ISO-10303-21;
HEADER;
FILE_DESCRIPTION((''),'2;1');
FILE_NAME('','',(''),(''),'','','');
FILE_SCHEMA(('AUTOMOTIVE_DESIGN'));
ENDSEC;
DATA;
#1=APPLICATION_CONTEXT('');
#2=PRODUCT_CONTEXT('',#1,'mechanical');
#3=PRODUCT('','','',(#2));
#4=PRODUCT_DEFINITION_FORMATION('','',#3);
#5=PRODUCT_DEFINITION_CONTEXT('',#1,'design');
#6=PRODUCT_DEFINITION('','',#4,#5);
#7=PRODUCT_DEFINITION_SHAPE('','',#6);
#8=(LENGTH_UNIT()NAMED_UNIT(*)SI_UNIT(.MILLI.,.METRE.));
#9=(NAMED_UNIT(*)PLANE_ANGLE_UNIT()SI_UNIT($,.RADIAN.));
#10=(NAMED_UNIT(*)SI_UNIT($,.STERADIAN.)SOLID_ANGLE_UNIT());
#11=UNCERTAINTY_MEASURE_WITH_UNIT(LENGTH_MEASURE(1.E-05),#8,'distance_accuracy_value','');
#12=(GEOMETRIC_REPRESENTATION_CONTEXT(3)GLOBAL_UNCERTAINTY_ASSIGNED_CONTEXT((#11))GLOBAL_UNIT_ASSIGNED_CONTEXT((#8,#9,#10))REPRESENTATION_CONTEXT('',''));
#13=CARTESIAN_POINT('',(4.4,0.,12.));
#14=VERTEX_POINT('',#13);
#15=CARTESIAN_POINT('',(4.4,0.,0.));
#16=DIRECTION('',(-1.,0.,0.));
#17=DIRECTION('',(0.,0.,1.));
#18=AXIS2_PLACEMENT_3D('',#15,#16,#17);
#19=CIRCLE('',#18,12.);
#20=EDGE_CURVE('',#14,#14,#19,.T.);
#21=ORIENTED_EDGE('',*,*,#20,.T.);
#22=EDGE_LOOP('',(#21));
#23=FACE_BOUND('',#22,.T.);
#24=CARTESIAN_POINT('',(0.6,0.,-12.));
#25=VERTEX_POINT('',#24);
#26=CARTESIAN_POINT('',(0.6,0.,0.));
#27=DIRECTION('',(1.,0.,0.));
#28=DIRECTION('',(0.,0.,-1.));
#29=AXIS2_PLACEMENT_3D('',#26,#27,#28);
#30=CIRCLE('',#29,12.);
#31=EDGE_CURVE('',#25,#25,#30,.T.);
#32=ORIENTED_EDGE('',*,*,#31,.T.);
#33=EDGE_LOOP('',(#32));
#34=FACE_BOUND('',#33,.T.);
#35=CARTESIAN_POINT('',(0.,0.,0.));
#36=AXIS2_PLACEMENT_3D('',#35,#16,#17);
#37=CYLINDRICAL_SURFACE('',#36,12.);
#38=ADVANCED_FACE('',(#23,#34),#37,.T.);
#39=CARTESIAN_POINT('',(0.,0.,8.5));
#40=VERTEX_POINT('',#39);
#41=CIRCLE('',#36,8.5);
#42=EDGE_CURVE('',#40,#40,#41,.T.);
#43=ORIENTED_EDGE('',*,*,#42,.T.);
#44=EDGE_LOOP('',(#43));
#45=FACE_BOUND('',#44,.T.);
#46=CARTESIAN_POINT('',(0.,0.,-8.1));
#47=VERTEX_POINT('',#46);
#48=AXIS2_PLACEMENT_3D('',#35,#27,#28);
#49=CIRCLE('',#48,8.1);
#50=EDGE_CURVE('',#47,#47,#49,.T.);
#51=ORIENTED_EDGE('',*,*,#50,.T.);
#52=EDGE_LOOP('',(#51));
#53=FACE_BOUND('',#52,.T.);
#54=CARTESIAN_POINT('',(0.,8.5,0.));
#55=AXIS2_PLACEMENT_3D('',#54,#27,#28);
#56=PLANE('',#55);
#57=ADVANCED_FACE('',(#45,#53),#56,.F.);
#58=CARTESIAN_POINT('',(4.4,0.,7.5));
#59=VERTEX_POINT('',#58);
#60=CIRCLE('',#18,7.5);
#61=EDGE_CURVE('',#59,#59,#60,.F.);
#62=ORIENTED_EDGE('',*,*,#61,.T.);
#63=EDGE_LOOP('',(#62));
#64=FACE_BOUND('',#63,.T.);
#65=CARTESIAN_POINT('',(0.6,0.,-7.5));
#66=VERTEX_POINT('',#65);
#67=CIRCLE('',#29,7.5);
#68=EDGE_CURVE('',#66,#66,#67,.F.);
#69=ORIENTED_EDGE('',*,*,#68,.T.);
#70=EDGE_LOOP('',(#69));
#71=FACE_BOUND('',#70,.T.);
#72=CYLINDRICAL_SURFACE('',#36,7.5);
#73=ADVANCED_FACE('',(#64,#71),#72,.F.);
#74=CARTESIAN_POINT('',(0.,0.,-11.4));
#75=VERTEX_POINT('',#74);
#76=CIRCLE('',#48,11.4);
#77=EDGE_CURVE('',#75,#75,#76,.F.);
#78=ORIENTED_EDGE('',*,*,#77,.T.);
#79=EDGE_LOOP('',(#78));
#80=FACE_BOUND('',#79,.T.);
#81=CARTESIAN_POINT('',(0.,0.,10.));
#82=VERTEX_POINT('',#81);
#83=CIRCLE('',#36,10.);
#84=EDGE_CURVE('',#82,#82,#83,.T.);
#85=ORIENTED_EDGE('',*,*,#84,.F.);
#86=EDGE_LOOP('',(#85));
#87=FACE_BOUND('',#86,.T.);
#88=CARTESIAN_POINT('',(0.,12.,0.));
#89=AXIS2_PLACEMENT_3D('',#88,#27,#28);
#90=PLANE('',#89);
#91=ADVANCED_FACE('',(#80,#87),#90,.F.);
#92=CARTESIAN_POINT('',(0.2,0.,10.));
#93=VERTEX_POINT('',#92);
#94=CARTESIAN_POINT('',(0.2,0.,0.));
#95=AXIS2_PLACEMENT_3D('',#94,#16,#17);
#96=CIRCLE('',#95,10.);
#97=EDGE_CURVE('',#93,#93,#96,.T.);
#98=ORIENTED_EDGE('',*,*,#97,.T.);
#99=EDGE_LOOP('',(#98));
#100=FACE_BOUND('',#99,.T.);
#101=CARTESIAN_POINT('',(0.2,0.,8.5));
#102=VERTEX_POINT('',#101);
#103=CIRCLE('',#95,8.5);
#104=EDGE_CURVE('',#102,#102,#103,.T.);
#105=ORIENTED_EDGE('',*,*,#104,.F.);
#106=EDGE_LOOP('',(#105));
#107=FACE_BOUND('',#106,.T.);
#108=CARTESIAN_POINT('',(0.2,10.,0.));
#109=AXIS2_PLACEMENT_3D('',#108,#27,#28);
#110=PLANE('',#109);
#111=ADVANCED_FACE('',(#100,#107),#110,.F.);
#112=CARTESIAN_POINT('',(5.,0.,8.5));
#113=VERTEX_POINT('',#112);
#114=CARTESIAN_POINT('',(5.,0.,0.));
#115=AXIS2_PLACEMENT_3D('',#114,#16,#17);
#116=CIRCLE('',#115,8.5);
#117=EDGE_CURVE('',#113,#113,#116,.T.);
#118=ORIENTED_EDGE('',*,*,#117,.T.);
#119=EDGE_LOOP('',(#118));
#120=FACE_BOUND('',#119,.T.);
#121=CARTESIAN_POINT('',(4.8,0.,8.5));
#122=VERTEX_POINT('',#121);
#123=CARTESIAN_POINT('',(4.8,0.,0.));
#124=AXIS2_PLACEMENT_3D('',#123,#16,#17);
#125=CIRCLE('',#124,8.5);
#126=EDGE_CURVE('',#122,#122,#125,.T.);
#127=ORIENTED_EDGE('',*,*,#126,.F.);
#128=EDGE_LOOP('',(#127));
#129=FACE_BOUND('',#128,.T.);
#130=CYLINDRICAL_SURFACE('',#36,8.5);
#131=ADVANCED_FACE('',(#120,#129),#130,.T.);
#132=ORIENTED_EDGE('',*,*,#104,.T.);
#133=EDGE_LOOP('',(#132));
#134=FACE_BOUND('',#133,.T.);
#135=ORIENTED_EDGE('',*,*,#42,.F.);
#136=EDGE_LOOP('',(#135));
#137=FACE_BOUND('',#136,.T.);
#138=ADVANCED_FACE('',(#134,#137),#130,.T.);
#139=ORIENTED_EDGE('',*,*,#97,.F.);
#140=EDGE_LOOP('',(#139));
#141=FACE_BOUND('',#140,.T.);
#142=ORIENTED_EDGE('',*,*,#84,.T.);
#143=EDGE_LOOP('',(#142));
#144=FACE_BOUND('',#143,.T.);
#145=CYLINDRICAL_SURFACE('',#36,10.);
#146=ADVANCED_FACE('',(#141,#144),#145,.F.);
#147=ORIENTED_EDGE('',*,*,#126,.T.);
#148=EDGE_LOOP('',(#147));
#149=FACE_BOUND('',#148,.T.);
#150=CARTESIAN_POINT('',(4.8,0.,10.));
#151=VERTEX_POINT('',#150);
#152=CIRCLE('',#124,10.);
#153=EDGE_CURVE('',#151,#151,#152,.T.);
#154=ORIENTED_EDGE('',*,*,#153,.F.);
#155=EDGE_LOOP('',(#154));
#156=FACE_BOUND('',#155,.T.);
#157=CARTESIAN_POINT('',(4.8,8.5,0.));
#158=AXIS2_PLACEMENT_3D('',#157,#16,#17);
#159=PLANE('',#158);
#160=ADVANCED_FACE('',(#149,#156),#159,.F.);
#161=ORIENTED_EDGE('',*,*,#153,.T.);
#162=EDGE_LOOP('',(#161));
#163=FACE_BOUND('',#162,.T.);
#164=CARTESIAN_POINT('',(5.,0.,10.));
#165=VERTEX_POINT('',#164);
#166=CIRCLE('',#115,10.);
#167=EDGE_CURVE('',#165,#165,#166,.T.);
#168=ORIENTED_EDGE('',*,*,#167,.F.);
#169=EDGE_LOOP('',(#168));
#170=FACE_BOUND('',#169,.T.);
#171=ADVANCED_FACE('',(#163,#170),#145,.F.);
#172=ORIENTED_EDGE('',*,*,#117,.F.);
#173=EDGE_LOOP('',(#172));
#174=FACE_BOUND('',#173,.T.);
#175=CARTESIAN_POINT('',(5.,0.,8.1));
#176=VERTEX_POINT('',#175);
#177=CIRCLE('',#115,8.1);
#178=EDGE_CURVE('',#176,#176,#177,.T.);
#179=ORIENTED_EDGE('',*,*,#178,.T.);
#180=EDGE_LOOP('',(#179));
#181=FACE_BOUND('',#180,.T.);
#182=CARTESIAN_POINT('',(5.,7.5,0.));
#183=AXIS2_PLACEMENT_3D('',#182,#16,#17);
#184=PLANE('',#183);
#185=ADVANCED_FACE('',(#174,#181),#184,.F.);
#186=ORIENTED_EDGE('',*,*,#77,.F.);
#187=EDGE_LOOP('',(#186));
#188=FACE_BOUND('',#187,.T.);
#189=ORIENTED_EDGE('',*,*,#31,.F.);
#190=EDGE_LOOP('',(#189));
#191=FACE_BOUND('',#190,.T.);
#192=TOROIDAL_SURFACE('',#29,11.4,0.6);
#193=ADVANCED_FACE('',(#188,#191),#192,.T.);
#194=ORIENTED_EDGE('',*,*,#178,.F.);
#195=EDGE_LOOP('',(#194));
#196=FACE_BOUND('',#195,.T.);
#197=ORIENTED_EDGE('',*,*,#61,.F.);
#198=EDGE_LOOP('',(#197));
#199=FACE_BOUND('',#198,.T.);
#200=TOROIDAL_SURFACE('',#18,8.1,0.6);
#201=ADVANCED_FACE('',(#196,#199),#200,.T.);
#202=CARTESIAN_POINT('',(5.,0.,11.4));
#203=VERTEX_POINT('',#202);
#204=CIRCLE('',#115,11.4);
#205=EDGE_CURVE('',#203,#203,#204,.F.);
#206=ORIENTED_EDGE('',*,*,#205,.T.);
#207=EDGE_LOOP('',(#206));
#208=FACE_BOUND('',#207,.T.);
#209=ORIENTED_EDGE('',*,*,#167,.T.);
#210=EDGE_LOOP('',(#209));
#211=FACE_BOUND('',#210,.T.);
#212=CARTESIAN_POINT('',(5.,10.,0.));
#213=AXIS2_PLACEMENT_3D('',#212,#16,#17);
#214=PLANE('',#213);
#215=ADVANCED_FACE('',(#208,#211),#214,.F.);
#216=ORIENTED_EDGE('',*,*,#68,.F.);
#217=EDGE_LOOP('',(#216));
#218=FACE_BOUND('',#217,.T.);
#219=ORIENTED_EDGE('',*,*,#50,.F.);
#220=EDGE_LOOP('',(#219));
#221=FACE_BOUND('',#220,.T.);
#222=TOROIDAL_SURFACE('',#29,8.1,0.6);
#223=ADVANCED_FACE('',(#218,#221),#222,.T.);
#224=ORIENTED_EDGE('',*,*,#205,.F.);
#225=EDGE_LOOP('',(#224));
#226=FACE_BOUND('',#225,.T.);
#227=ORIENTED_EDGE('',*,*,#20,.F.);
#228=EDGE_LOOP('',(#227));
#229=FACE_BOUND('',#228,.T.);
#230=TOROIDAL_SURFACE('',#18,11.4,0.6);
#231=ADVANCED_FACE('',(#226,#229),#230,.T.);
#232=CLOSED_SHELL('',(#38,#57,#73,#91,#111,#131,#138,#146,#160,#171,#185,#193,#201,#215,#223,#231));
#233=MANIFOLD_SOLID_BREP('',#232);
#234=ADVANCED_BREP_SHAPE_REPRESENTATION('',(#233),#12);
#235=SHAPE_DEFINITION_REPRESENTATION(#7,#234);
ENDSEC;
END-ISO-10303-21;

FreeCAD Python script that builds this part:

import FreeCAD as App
import Part
import Sketcher
Q = App.Units.Quantity


def edges_at(feature, points):
    """Names of the edges that pass closest to the given points."""
    edges = feature.Shape.Edges
    near = lambda p: min(range(len(edges)), key=lambda i: edges[i].distToShape(Part.Vertex(*p))[0])
    return sorted({f"Edge{near(p) + 1}" for p in points})

doc = App.newDocument("Part")
body = doc.addObject("PartDesign::Body", "Body")

sketch1 = doc.addObject("Sketcher::SketchObject", "Sketch")
body.addObject(sketch1)
sketch1.AttachmentSupport = (doc.XY_Plane, [""])
sketch1.MapMode = "FlatFace"
sketch1.addGeometry([
    Part.LineSegment(App.Vector(0, 8.5, 0), App.Vector(0, 7.5, 0)),
    Part.LineSegment(App.Vector(0, 7.5, 0), App.Vector(5, 7.5, 0)),
    Part.LineSegment(App.Vector(5, 7.5, 0), App.Vector(5, 8.5, 0)),
    Part.LineSegment(App.Vector(5, 8.5, 0), App.Vector(4.8, 8.5, 0)),
    Part.LineSegment(App.Vector(4.8, 8.5, 0), App.Vector(4.8, 10, 0)),
    Part.LineSegment(App.Vector(4.8, 10, 0), App.Vector(5, 10, 0)),
    Part.LineSegment(App.Vector(5, 10, 0), App.Vector(5, 12, 0)),
    Part.LineSegment(App.Vector(5, 12, 0), App.Vector(0, 12, 0)),
    Part.LineSegment(App.Vector(0, 12, 0), App.Vector(0, 10, 0)),
    Part.LineSegment(App.Vector(0, 10, 0), App.Vector(0.2, 10, 0)),
    Part.LineSegment(App.Vector(0.2, 10, 0), App.Vector(0.2, 8.5, 0)),
    Part.LineSegment(App.Vector(0.2, 8.5, 0), App.Vector(0, 8.5, 0)),
], False)
sketch1.addConstraint([
    Sketcher.Constraint("Coincident", 0, 2, 1, 1),
    Sketcher.Constraint("Coincident", 1, 2, 2, 1),
    Sketcher.Constraint("Coincident", 2, 2, 3, 1),
    Sketcher.Constraint("Coincident", 3, 2, 4, 1),
    Sketcher.Constraint("Coincident", 4, 2, 5, 1),
    Sketcher.Constraint("Coincident", 5, 2, 6, 1),
    Sketcher.Constraint("Coincident", 6, 2, 7, 1),
    Sketcher.Constraint("Coincident", 7, 2, 8, 1),
    Sketcher.Constraint("Coincident", 8, 2, 9, 1),
    Sketcher.Constraint("Coincident", 9, 2, 10, 1),
    Sketcher.Constraint("Coincident", 10, 2, 11, 1),
    Sketcher.Constraint("Coincident", 11, 2, 0, 1),
    Sketcher.Constraint("Vertical", 0),
    Sketcher.Constraint("Horizontal", 1),
    Sketcher.Constraint("Vertical", 2),
    Sketcher.Constraint("Horizontal", 3),
    Sketcher.Constraint("Vertical", 4),
    Sketcher.Constraint("Horizontal", 5),
    Sketcher.Constraint("Vertical", 6),
    Sketcher.Constraint("Horizontal", 7),
    Sketcher.Constraint("Vertical", 8),
    Sketcher.Constraint("Horizontal", 9),
    Sketcher.Constraint("Vertical", 10),
    Sketcher.Constraint("Horizontal", 11),
    Sketcher.Constraint("PointOnObject", 0, 2, -2),
    Sketcher.Constraint("PointOnObject", 7, 2, -2),
    Sketcher.Constraint("Horizontal", 5, 2, 8, 2),
    Sketcher.Constraint("Horizontal", 3, 2, 10, 2),
    Sketcher.Constraint("Vertical", 2, 2, 5, 2),
    Sketcher.Constraint("Equal", 5, 9),
    Sketcher.Constraint("DistanceX", 1, 1, 1, 2, Q("5 mm")),
    Sketcher.Constraint("DistanceY", 0, 2, 0, 1, Q("1 mm")),
    Sketcher.Constraint("DistanceY", 6, 1, 6, 2, Q("2 mm")),
    Sketcher.Constraint("DistanceX", 3, 2, 3, 1, Q("0.2 mm")),
    Sketcher.Constraint("DistanceY", 4, 1, 4, 2, Q("1.5 mm")),
    Sketcher.Constraint("DistanceY", -1, 1, 4, 2, Q("10 mm")),
])
revolution = doc.addObject("PartDesign::Revolution", "Revolution")
body.addObject(revolution)
revolution.Profile = sketch1
revolution.ReferenceAxis = (sketch1, ["H_Axis"])
revolution.Angle = 360
doc.recompute()

fillet = doc.addObject("PartDesign::Fillet", "Fillet")
body.addObject(fillet)
fillet.Base = (revolution, edges_at(revolution, [
    (5, 0, -12),
    (5, 0, -7.5),
    (0, 0, -7.5),
    (0, 0, -12),
]))
fillet.Radius = 0.6

doc.recompute()
